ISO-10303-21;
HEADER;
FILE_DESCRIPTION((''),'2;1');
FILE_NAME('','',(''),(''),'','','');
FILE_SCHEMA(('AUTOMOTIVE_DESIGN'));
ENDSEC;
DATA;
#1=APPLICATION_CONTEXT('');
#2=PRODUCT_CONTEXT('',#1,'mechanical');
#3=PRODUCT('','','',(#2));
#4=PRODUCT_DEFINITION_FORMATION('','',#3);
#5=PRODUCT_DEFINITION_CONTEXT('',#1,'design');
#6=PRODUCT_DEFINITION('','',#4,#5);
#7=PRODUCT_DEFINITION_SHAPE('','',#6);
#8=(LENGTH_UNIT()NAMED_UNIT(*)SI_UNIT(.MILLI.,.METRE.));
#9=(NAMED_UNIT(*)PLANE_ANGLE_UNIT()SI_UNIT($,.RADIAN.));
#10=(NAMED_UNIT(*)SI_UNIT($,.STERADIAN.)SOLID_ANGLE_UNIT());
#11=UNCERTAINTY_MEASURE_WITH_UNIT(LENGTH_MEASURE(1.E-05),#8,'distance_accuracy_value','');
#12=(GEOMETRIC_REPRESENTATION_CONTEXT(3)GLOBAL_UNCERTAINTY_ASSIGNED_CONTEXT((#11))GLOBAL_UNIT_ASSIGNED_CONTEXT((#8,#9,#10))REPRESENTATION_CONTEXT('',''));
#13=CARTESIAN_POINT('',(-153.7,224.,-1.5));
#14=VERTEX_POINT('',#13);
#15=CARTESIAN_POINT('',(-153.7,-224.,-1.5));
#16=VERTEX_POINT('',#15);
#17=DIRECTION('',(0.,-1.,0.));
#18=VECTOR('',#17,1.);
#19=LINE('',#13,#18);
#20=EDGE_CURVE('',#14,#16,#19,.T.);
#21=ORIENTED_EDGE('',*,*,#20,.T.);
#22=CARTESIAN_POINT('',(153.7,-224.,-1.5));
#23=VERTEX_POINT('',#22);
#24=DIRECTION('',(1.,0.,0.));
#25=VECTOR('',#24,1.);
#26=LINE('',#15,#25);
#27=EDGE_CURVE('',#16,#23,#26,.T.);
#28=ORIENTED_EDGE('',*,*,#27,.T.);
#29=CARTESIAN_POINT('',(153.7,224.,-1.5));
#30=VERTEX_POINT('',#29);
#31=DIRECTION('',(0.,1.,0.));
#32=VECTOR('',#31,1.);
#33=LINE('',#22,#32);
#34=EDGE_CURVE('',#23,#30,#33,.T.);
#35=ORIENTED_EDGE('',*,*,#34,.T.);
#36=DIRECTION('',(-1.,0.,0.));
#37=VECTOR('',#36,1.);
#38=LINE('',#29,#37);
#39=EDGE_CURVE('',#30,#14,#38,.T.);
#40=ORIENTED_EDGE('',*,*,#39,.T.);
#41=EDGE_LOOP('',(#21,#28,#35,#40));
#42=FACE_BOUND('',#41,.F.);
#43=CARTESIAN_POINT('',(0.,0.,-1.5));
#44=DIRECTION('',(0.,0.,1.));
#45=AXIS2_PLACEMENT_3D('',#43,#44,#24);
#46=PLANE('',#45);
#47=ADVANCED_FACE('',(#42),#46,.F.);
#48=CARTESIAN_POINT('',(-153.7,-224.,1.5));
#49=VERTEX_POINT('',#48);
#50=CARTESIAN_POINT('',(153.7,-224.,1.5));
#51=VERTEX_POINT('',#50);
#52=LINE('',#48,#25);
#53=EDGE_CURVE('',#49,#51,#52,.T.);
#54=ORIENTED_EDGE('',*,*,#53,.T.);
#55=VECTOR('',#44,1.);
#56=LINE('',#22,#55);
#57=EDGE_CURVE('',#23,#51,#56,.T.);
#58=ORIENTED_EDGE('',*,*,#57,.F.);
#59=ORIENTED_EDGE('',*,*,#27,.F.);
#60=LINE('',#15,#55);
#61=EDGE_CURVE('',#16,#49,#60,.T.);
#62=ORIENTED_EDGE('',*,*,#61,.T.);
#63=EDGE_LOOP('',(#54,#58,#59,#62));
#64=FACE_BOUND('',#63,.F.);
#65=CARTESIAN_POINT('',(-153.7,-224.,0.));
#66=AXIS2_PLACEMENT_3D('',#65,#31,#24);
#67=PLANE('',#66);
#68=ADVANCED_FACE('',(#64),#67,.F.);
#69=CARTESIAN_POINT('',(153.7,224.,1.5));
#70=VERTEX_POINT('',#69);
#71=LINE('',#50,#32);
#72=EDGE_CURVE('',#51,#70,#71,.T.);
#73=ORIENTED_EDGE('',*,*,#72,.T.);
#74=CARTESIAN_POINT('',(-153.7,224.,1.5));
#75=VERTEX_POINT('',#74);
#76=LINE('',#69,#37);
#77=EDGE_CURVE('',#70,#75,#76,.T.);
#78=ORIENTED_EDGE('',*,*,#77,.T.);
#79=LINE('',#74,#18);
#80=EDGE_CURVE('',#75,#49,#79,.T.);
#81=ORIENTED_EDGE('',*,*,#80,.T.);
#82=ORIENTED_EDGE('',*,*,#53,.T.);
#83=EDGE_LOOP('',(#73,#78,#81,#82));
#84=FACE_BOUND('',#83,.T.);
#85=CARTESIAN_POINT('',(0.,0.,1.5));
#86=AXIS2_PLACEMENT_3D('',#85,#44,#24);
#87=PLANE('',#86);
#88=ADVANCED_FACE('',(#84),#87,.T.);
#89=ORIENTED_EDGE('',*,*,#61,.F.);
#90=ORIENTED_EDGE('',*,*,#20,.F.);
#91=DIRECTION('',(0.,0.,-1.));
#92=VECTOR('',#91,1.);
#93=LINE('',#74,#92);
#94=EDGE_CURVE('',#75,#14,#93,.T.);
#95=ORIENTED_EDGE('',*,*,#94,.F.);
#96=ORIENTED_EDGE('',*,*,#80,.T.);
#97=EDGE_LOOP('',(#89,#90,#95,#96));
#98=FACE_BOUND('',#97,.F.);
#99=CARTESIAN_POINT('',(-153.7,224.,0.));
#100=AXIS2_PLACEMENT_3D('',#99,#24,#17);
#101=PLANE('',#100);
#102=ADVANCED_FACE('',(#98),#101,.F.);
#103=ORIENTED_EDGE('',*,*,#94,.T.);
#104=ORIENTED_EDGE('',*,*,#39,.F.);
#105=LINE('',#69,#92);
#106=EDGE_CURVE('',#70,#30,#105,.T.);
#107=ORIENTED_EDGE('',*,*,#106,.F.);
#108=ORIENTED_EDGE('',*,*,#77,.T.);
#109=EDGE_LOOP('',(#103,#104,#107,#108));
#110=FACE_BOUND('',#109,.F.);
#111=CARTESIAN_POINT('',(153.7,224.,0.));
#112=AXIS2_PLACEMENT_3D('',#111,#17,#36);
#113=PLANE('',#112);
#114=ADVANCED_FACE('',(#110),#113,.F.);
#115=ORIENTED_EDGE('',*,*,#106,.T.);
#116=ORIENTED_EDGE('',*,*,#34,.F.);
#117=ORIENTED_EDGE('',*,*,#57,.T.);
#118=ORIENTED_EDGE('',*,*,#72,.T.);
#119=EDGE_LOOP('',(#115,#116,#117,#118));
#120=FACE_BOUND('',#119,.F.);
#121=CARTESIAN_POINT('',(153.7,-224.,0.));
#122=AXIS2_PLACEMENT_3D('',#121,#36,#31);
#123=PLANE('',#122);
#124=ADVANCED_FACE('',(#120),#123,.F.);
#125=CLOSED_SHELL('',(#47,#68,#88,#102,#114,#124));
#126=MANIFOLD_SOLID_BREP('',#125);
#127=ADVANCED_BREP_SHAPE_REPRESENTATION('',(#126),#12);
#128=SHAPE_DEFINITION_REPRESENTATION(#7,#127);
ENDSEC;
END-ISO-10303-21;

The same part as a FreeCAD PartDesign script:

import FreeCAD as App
import Part
import Sketcher

V = App.Vector

doc = App.newDocument("Part")
params = doc.addObject("Spreadsheet::Sheet", "Params")
for row, (alias, value) in enumerate([
    ("sketch1_height", "448 mm"),
    ("sketch1_width", "307.4 mm"),
    ("pad1_length", "3 mm"),
], start=1):
    params.set(f"A{row}", alias)
    params.set(f"B{row}", "=" + value)
    params.setAlias(f"B{row}", alias)

body = doc.addObject("PartDesign::Body", "Body")

sketch1 = body.newObject("Sketcher::SketchObject", "Sketch")
sketch1.AttachmentSupport = (doc.getObject("XY_Plane"), [""])
sketch1.MapMode = "FlatFace"
sketch1.addGeometry([
    Part.LineSegment(V(-153.7, 224, 0), V(-153.7, -224, 0)),
    Part.LineSegment(V(-153.7, -224, 0), V(153.7, -224, 0)),
    Part.LineSegment(V(153.7, -224, 0), V(153.7, 224, 0)),
    Part.LineSegment(V(153.7, 224, 0), V(-153.7, 224, 0)),
], False)
sketch1.addConstraint([
    Sketcher.Constraint("Coincident", 0, 2, 1, 1),
    Sketcher.Constraint("Coincident", 1, 2, 2, 1),
    Sketcher.Constraint("Coincident", 2, 2, 3, 1),
    Sketcher.Constraint("Coincident", 3, 2, 0, 1),
    Sketcher.Constraint("Vertical", 0),
    Sketcher.Constraint("Horizontal", 1),
    Sketcher.Constraint("Vertical", 2),
    Sketcher.Constraint("Horizontal", 3),
    Sketcher.Constraint("Symmetric", 0, 2, 2, 2, -1, 1),
    Sketcher.Constraint("DistanceY", 0, 2, 0, 1, 448.0),
    Sketcher.Constraint("DistanceX", 1, 1, 1, 2, 307.4),
])
sketch1.setExpression("Constraints[9]", "Params.sketch1_height")
sketch1.setExpression("Constraints[10]", "Params.sketch1_width")
pad1 = body.newObject("PartDesign::Pad", "Pad")
pad1.Profile = sketch1
pad1.setExpression("Length", "Params.pad1_length")
pad1.Midplane = True

doc.recompute()
